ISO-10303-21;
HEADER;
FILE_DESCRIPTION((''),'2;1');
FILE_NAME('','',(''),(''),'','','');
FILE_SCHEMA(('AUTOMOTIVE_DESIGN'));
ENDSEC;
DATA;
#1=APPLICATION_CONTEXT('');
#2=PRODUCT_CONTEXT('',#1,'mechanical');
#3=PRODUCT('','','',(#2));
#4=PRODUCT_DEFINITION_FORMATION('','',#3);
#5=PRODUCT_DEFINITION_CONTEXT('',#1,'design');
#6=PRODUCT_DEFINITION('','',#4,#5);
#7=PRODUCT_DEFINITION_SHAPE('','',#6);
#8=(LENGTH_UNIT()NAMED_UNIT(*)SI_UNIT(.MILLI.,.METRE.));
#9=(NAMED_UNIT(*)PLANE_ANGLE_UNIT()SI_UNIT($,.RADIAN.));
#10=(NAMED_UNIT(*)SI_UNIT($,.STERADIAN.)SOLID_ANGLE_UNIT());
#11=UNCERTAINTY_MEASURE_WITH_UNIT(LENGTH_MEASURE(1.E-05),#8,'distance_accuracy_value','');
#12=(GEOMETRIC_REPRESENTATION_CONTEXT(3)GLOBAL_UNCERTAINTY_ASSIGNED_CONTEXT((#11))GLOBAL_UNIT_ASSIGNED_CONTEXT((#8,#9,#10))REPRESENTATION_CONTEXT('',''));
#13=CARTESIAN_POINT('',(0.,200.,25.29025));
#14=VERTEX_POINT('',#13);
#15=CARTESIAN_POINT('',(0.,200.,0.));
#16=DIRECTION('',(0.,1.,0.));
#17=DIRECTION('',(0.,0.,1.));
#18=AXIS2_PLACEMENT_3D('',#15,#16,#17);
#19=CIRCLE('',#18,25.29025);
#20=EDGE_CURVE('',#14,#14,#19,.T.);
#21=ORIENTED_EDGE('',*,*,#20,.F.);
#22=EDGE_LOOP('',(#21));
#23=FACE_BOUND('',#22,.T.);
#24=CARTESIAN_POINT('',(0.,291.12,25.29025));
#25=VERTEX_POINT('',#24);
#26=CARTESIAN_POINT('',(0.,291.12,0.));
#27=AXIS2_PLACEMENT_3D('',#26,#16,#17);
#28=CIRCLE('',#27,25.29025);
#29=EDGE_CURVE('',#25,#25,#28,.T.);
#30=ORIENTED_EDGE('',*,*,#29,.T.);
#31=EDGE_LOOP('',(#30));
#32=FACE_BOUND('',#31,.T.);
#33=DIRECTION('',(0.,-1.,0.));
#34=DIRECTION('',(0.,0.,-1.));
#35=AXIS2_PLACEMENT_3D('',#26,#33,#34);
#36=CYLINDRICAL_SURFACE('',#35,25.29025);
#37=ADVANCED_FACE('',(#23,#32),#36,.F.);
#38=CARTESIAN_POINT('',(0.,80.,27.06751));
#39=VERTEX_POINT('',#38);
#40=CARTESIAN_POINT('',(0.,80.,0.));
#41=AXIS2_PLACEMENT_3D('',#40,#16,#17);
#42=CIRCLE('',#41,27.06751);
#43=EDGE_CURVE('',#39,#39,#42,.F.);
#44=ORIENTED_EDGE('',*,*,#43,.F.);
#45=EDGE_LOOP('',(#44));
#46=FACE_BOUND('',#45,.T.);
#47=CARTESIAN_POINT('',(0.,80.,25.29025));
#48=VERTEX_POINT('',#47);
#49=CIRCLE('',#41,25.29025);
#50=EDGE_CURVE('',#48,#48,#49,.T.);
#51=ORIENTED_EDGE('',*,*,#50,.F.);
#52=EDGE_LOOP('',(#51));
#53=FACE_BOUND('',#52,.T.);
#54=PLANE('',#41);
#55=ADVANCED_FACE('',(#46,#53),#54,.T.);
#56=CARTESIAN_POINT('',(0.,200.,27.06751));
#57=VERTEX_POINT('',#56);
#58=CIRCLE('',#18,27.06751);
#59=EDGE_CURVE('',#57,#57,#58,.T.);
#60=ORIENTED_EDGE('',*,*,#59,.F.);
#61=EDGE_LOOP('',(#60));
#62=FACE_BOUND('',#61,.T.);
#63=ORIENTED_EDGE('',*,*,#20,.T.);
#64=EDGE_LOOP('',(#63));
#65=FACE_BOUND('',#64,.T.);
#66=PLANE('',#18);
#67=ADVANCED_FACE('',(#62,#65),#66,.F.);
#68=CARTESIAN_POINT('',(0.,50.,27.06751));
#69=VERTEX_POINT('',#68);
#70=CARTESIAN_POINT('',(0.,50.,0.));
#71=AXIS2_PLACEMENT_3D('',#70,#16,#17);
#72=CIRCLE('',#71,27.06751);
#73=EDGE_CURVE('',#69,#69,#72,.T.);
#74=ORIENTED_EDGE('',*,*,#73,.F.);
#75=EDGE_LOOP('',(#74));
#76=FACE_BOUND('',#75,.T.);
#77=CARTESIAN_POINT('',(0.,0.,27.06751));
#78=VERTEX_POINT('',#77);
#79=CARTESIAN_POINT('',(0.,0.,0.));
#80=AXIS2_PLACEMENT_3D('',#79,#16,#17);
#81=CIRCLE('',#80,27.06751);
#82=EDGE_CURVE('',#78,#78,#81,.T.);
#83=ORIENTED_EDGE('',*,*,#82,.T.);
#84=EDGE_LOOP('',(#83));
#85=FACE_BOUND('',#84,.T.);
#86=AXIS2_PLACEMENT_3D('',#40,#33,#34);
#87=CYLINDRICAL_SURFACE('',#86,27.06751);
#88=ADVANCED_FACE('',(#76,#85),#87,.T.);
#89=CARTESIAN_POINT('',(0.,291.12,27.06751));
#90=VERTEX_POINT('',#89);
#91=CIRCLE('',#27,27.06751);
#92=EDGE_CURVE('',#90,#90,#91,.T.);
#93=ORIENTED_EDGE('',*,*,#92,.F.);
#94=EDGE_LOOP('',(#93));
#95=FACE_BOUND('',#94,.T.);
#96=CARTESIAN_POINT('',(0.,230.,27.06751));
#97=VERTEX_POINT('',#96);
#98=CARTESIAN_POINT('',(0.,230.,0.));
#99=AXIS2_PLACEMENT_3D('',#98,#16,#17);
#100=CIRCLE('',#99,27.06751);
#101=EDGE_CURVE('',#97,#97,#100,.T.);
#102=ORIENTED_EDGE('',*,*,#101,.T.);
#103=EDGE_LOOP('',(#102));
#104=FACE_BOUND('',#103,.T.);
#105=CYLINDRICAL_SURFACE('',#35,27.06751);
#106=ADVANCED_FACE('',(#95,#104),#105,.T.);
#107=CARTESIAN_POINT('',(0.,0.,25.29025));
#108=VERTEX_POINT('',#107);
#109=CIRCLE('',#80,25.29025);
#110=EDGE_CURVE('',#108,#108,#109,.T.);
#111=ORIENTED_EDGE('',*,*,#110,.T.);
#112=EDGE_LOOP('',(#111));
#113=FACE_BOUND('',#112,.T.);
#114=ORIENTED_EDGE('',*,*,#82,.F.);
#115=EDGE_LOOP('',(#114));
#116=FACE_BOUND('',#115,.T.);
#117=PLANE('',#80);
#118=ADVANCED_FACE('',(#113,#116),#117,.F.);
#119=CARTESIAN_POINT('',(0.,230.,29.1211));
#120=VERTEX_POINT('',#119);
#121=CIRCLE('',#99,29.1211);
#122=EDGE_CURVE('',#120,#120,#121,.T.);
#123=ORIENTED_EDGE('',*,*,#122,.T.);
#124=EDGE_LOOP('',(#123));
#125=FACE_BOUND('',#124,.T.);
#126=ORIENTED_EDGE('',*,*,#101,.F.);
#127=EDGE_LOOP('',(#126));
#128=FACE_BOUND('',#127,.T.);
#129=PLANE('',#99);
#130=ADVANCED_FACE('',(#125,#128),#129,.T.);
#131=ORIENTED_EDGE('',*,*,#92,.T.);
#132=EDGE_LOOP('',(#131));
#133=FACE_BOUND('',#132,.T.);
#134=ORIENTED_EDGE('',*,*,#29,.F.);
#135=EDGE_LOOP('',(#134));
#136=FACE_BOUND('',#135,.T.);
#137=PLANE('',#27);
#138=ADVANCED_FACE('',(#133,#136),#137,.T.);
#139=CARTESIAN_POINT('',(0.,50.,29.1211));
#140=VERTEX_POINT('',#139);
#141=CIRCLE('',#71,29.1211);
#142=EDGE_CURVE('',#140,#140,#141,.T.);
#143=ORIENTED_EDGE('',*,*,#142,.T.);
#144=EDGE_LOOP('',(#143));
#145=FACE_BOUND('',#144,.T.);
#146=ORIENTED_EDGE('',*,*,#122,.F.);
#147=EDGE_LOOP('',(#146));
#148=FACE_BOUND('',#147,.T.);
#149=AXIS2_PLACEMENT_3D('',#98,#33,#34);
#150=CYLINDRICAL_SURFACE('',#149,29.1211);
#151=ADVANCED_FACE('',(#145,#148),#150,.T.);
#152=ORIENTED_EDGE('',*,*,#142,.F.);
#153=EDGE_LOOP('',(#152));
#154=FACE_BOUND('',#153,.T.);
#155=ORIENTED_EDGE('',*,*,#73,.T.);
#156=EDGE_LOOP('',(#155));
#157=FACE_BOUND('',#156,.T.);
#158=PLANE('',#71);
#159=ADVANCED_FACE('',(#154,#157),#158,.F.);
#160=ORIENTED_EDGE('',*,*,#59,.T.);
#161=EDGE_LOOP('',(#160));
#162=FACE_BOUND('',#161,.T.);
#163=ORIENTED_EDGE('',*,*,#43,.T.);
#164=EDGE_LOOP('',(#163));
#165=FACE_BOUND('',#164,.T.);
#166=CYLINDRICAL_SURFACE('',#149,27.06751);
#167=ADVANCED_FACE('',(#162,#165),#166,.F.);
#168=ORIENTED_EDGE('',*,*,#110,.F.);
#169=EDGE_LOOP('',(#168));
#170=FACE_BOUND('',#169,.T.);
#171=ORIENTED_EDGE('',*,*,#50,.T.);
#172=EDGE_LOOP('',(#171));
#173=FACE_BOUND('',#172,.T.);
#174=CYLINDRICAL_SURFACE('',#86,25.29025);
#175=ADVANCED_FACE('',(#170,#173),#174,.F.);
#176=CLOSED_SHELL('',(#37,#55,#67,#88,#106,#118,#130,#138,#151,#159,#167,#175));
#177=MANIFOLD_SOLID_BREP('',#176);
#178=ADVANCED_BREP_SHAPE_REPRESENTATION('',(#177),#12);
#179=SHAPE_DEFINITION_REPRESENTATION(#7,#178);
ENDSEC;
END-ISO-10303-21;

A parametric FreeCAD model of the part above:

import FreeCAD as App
import Part
import Sketcher
from FreeCAD import Vector

doc = App.newDocument("Part")
body = doc.addObject("PartDesign::Body", "Body")

# Sketch on XZ plane
sketch1 = doc.addObject("Sketcher::SketchObject", "Sketch")
body.addObject(sketch1)
sketch1.AttachmentSupport = (doc.XZ_Plane, [""])
sketch1.MapMode = "FlatFace"
sketch1.addGeometry(Part.Circle(Vector(0, 0, 0), Vector(0, 0, 1), 27), False)
sketch1.addGeometry(Part.Circle(Vector(0, 0, 0), Vector(0, 0, 1), 25), False)
sketch1.addConstraint(Sketcher.Constraint("Coincident", 0, 3, -1, 1))
sketch1.addConstraint(Sketcher.Constraint("Coincident", 1, 3, -1, 1))
sketch1.addConstraint(Sketcher.Constraint("Diameter", 1, 50.5805))
sketch1.addConstraint(Sketcher.Constraint("Diameter", 0, 54.13502))
pad1 = doc.addObject("PartDesign::Pad", "Pad")
body.addObject(pad1)
pad1.Profile = sketch1
pad1.Length = 80
pad1.Reversed = True

# Sketch on XZ plane
sketch2 = doc.addObject("Sketcher::SketchObject", "Sketch001")
body.addObject(sketch2)
sketch2.AttachmentSupport = (doc.XZ_Plane, [""])
sketch2.MapMode = "FlatFace"
sketch2.AttachmentOffset = App.Placement(Vector(0, 0, -50), App.Rotation())
sketch2.addGeometry(Part.Circle(Vector(0, 0, 0), Vector(0, 0, 1), 29), False)
sketch2.addGeometry(Part.Circle(Vector(0, 0, 0), Vector(0, 0, 1), 27), False)
sketch2.addConstraint(Sketcher.Constraint("Coincident", 0, 3, -1, 1))
sketch2.addConstraint(Sketcher.Constraint("Coincident", 1, 3, -1, 1))
sketch2.addConstraint(Sketcher.Constraint("Diameter", 0, 58.2422))
sketch2.addConstraint(Sketcher.Constraint("Diameter", 1, 54.13502))
pad2 = doc.addObject("PartDesign::Pad", "Pad001")
body.addObject(pad2)
pad2.Profile = sketch2
pad2.Length = 180
pad2.Reversed = True

# Sketch on XZ plane
sketch3 = doc.addObject("Sketcher::SketchObject", "Sketch002")
body.addObject(sketch3)
sketch3.AttachmentSupport = (doc.XZ_Plane, [""])
sketch3.MapMode = "FlatFace"
sketch3.AttachmentOffset = App.Placement(Vector(0, 0, -200), App.Rotation())
sketch3.addGeometry(Part.Circle(Vector(0, 0, 0), Vector(0, 0, 1), 27), False)
sketch3.addGeometry(Part.Circle(Vector(0, 0, 0), Vector(0, 0, 1), 25), False)
sketch3.addConstraint(Sketcher.Constraint("Coincident", 0, 3, -1, 1))
sketch3.addConstraint(Sketcher.Constraint("Coincident", 1, 3, -1, 1))
sketch3.addConstraint(Sketcher.Constraint("Diameter", 1, 50.5805))
sketch3.addConstraint(Sketcher.Constraint("Diameter", 0, 54.13502))
pad3 = doc.addObject("PartDesign::Pad", "Pad002")
body.addObject(pad3)
pad3.Profile = sketch3
pad3.Length = 91.12
pad3.Reversed = True

doc.recompute()
